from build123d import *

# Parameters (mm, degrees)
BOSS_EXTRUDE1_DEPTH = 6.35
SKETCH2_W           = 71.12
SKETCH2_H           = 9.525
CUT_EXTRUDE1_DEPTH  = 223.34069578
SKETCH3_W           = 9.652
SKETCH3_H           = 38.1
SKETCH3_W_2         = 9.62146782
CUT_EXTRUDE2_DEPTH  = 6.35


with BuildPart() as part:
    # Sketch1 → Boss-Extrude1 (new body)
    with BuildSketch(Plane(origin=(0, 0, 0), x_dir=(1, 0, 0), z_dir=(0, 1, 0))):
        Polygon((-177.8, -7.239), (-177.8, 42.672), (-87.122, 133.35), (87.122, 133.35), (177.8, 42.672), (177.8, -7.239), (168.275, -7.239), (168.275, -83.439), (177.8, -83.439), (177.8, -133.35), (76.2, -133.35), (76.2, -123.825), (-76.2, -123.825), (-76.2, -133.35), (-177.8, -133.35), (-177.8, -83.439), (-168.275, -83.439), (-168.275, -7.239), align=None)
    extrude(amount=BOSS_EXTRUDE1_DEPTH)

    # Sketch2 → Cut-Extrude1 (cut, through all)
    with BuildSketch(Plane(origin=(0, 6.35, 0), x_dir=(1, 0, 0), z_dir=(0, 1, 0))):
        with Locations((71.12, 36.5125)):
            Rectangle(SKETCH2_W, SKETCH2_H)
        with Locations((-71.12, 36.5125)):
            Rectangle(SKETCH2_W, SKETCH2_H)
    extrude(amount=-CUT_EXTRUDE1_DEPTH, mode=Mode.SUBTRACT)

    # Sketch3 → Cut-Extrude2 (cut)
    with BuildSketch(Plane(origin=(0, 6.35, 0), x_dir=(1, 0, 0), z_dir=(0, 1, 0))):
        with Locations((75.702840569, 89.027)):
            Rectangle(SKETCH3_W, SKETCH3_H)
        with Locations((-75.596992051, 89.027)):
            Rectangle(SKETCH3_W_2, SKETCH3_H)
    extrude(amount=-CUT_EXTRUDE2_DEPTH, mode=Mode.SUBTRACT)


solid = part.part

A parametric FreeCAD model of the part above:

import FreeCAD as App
import Part
import Sketcher
Q = App.Units.Quantity

doc = App.newDocument("Part")
body = doc.addObject("PartDesign::Body", "Body")

sketch1 = body.newObject("Sketcher::SketchObject", "Sketch")
sketch1.AttachmentSupport = (doc.getObject("XZ_Plane"), [""])
sketch1.MapMode = "FlatFace"
sketch1.addGeometry([
    Part.LineSegment(App.Vector(-177.8, -42.672, 0), App.Vector(-177.8, 7.239, 0)),
    Part.LineSegment(App.Vector(-177.8, 7.239, 0), App.Vector(-168.275, 7.239, 0)),
    Part.LineSegment(App.Vector(-168.275, 7.239, 0), App.Vector(-168.275, 83.439, 0)),
    Part.LineSegment(App.Vector(-168.275, 83.439, 0), App.Vector(-177.8, 83.439, 0)),
    Part.LineSegment(App.Vector(-177.8, 83.439, 0), App.Vector(-177.8, 133.35, 0)),
    Part.LineSegment(App.Vector(-177.8, 133.35, 0), App.Vector(-76.2, 133.35, 0)),
    Part.LineSegment(App.Vector(-76.2, 133.35, 0), App.Vector(-76.2, 123.825, 0)),
    Part.LineSegment(App.Vector(-76.2, 123.825, 0), App.Vector(76.2, 123.825, 0)),
    Part.LineSegment(App.Vector(76.2, 123.825, 0), App.Vector(76.2, 133.35, 0)),
    Part.LineSegment(App.Vector(76.2, 133.35, 0), App.Vector(177.8, 133.35, 0)),
    Part.LineSegment(App.Vector(177.8, 133.35, 0), App.Vector(177.8, 83.439, 0)),
    Part.LineSegment(App.Vector(177.8, 83.439, 0), App.Vector(168.275, 83.439, 0)),
    Part.LineSegment(App.Vector(168.275, 83.439, 0), App.Vector(168.275, 7.239, 0)),
    Part.LineSegment(App.Vector(168.275, 7.239, 0), App.Vector(177.8, 7.239, 0)),
    Part.LineSegment(App.Vector(177.8, 7.239, 0), App.Vector(177.8, -42.672, 0)),
    Part.LineSegment(App.Vector(177.8, -42.672, 0), App.Vector(87.122, -133.35, 0)),
    Part.LineSegment(App.Vector(87.122, -133.35, 0), App.Vector(-87.122, -133.35, 0)),
    Part.LineSegment(App.Vector(-87.122, -133.35, 0), App.Vector(-177.8, -42.672, 0)),
], False)
sketch1.addConstraint([
    Sketcher.Constraint("Coincident", 0, 2, 1, 1),
    Sketcher.Constraint("Coincident", 1, 2, 2, 1),
    Sketcher.Constraint("Coincident", 2, 2, 3, 1),
    Sketcher.Constraint("Coincident", 3, 2, 4, 1),
    Sketcher.Constraint("Coincident", 4, 2, 5, 1),
    Sketcher.Constraint("Coincident", 5, 2, 6, 1),
    Sketcher.Constraint("Coincident", 6, 2, 7, 1),
    Sketcher.Constraint("Coincident", 7, 2, 8, 1),
    Sketcher.Constraint("Coincident", 8, 2, 9, 1),
    Sketcher.Constraint("Coincident", 9, 2, 10, 1),
    Sketcher.Constraint("Coincident", 10, 2, 11, 1),
    Sketcher.Constraint("Coincident", 11, 2, 12, 1),
    Sketcher.Constraint("Coincident", 12, 2, 13, 1),
    Sketcher.Constraint("Coincident", 13, 2, 14, 1),
    Sketcher.Constraint("Coincident", 14, 2, 15, 1),
    Sketcher.Constraint("Coincident", 15, 2, 16, 1),
    Sketcher.Constraint("Coincident", 16, 2, 17, 1),
    Sketcher.Constraint("Coincident", 17, 2, 0, 1),
    Sketcher.Constraint("Vertical", 0),
    Sketcher.Constraint("Horizontal", 1),
    Sketcher.Constraint("Vertical", 2),
    Sketcher.Constraint("Horizontal", 3),
    Sketcher.Constraint("Vertical", 4),
    Sketcher.Constraint("Horizontal", 5),
    Sketcher.Constraint("Vertical", 6),
    Sketcher.Constraint("Horizontal", 7),
    Sketcher.Constraint("Vertical", 8),
    Sketcher.Constraint("Horizontal", 9),
    Sketcher.Constraint("Vertical", 10),
    Sketcher.Constraint("Horizontal", 11),
    Sketcher.Constraint("Vertical", 12),
    Sketcher.Constraint("Horizontal", 13),
    Sketcher.Constraint("Vertical", 14),
    Sketcher.Constraint("Horizontal", 16),
    Sketcher.Constraint("Symmetric", 5, 2, 8, 2, -2),
    Sketcher.Constraint("Symmetric", 3, 2, 10, 2, -2),
    Sketcher.Constraint("Symmetric", 1, 2, 12, 2, -2),
    Sketcher.Constraint("Symmetric", 14, 2, 17, 2, -2),
    Sketcher.Constraint("Perpendicular", 15, 17),
    Sketcher.Constraint("Vertical", 0, 2, 3, 2),
    Sketcher.Constraint("Equal", 0, 4),
    Sketcher.Constraint("Equal", 13, 6),
    Sketcher.Constraint("Equal", 15, 17),
    Sketcher.Constraint("DistanceX", 5, 1, 5, 2, Q("4 in")),
    Sketcher.Constraint("DistanceX", 7, 1, 7, 2, Q("6 in")),
    Sketcher.Constraint("DistanceY", 2, 1, 2, 2, Q("3 in")),
    Sketcher.Constraint("DistanceX", 16, 2, 16, 1, Q("6.86 in")),
    Sketcher.Constraint("DistanceX", 1, 1, 1, 2, Q("0.375 in")),
    Sketcher.Constraint("DistanceY", 0, 1, 0, 2, Q("1.965 in")),
    Sketcher.Constraint("DistanceY", -1, 1, 4, 2, Q("5.25 in")),
])
pad1 = body.newObject("PartDesign::Pad", "Pad")
pad1.Profile = sketch1
pad1.Length = Q("0.25 in")
pad1.Reversed = True

sketch2 = body.newObject("Sketcher::SketchObject", "Sketch001")
sketch2.AttachmentSupport = (doc.getObject("XZ_Plane"), [""])
sketch2.MapMode = "FlatFace"
sketch2.AttachmentOffset = App.Placement(App.Vector(0, 0, -0.25 * 25.4), App.Rotation())
sketch2.addGeometry([
    Part.LineSegment(App.Vector(35.56, -41.275, 0), App.Vector(35.56, -31.75, 0)),
    Part.LineSegment(App.Vector(35.56, -31.75, 0), App.Vector(106.68, -31.75, 0)),
    Part.LineSegment(App.Vector(106.68, -31.75, 0), App.Vector(106.68, -41.275, 0)),
    Part.LineSegment(App.Vector(106.68, -41.275, 0), App.Vector(35.56, -41.275, 0)),
    Part.LineSegment(App.Vector(-106.68, -41.275, 0), App.Vector(-106.68, -31.75, 0)),
    Part.LineSegment(App.Vector(-106.68, -31.75, 0), App.Vector(-35.56, -31.75, 0)),
    Part.LineSegment(App.Vector(-35.56, -31.75, 0), App.Vector(-35.56, -41.275, 0)),
    Part.LineSegment(App.Vector(-35.56, -41.275, 0), App.Vector(-106.68, -41.275, 0)),
], False)
sketch2.addConstraint([
    Sketcher.Constraint("Coincident", 0, 2, 1, 1),
    Sketcher.Constraint("Coincident", 1, 2, 2, 1),
    Sketcher.Constraint("Coincident", 2, 2, 3, 1),
    Sketcher.Constraint("Coincident", 3, 2, 0, 1),
    Sketcher.Constraint("Coincident", 4, 2, 5, 1),
    Sketcher.Constraint("Coincident", 5, 2, 6, 1),
    Sketcher.Constraint("Coincident", 6, 2, 7, 1),
    Sketcher.Constraint("Coincident", 7, 2, 4, 1),
    Sketcher.Constraint("Vertical", 0),
    Sketcher.Constraint("Horizontal", 1),
    Sketcher.Constraint("Vertical", 2),
    Sketcher.Constraint("Horizontal", 3),
    Sketcher.Constraint("Vertical", 4),
    Sketcher.Constraint("Horizontal", 5),
    Sketcher.Constraint("Vertical", 6),
    Sketcher.Constraint("Horizontal", 7),
    Sketcher.Constraint("Symmetric", 1, 2, 4, 2, -2),
    Sketcher.Constraint("Symmetric", 3, 2, 6, 2, -2),
    Sketcher.Constraint("DistanceX", 1, 1, 1, 2, Q("2.8 in")),
    Sketcher.Constraint("DistanceX", -1, 1, 0, 2, Q("1.4 in")),
    Sketcher.Constraint("DistanceY", 0, 1, 0, 2, Q("0.375 in")),
    Sketcher.Constraint("DistanceY", 0, 2, -1, 1, Q("1.25 in")),
])
pocket1 = body.newObject("PartDesign::Pocket", "Pocket")
pocket1.Profile = sketch2
pocket1.Type = "ThroughAll"
pocket1.Reversed = True

sketch3 = body.newObject("Sketcher::SketchObject", "Sketch002")
sketch3.AttachmentSupport = (doc.getObject("XZ_Plane"), [""])
sketch3.MapMode = "FlatFace"
sketch3.AttachmentOffset = App.Placement(App.Vector(0, 0, -0.25 * 25.4), App.Rotation())
sketch3.addGeometry([
    Part.LineSegment(App.Vector(70.876841, -108.077, 0), App.Vector(70.876841, -69.977, 0)),
    Part.LineSegment(App.Vector(70.876841, -69.977, 0), App.Vector(80.528841, -69.977, 0)),
    Part.LineSegment(App.Vector(80.528841, -69.977, 0), App.Vector(80.528841, -108.077, 0)),
    Part.LineSegment(App.Vector(80.528841, -108.077, 0), App.Vector(70.876841, -108.077, 0)),
    Part.LineSegment(App.Vector(-80.407726, -108.077, 0), App.Vector(-80.407726, -69.977, 0)),
    Part.LineSegment(App.Vector(-80.407726, -69.977, 0), App.Vector(-70.786258, -69.977, 0)),
    Part.LineSegment(App.Vector(-70.786258, -69.977, 0), App.Vector(-70.786258, -108.077, 0)),
    Part.LineSegment(App.Vector(-70.786258, -108.077, 0), App.Vector(-80.407726, -108.077, 0)),
], False)
sketch3.addConstraint([
    Sketcher.Constraint("Coincident", 0, 2, 1, 1),
    Sketcher.Constraint("Coincident", 1, 2, 2, 1),
    Sketcher.Constraint("Coincident", 2, 2, 3, 1),
    Sketcher.Constraint("Coincident", 3, 2, 0, 1),
    Sketcher.Constraint("Coincident", 4, 2, 5, 1),
    Sketcher.Constraint("Coincident", 5, 2, 6, 1),
    Sketcher.Constraint("Coincident", 6, 2, 7, 1),
    Sketcher.Constraint("Coincident", 7, 2, 4, 1),
    Sketcher.Constraint("Vertical", 0),
    Sketcher.Constraint("Horizontal", 1),
    Sketcher.Constraint("Vertical", 2),
    Sketcher.Constraint("Horizontal", 3),
    Sketcher.Constraint("Vertical", 4),
    Sketcher.Constraint("Horizontal", 5),
    Sketcher.Constraint("Vertical", 6),
    Sketcher.Constraint("Horizontal", 7),
    Sketcher.Constraint("Horizontal", 1, 2, 4, 2),
    Sketcher.Constraint("Horizontal", 3, 2, 6, 2),
    Sketcher.Constraint("DistanceY", 0, 1, 0, 2, Q("1.5 in")),
    Sketcher.Constraint("DistanceX", 1, 1, 1, 2, Q("0.38 in")),
    Sketcher.Constraint("DistanceY", 0, 2, -1, 1, Q("2.755 in")),
    Sketcher.Constraint("DistanceX", 5, 2, 0, 2, Q("141.663099 mm")),
    Sketcher.Constraint("DistanceX", 5, 1, 5, 2, Q("9.621468 mm")),
    Sketcher.Constraint("DistanceX", -1, 1, 0, 2, Q("70.876841 mm")),
])
pocket2 = body.newObject("PartDesign::Pocket", "Pocket001")
pocket2.Profile = sketch3
pocket2.Length = Q("0.25 in")
pocket2.Reversed = True

doc.recompute()
